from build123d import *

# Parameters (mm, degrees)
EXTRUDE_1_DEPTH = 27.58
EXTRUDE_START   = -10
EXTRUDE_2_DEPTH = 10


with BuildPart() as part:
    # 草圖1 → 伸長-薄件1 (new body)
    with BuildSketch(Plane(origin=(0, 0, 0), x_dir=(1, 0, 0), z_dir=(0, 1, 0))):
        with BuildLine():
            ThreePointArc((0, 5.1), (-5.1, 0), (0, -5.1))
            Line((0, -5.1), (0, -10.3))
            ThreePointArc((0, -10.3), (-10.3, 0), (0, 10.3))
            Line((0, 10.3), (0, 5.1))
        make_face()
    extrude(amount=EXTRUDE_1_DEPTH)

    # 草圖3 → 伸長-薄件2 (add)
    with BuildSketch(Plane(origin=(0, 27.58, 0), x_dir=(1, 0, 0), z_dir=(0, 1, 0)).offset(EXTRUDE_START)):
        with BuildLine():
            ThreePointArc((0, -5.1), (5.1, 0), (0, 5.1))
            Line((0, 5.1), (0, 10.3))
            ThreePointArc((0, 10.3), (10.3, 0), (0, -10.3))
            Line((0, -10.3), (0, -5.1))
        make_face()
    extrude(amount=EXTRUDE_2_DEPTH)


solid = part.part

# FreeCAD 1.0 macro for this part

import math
import FreeCAD as App
import Part
import Sketcher
Q = App.Units.Quantity

doc = App.newDocument("Part")
body = doc.addObject("PartDesign::Body", "Body")

# Sketch on XZ plane
sketch1 = body.newObject("Sketcher::SketchObject", "Sketch")
sketch1.AttachmentSupport = (doc.getObject("XZ_Plane"), [""])
sketch1.MapMode = "FlatFace"
sketch1.addGeometry([
    Part.ArcOfCircle(Part.Circle(App.Vector(0, 0, 0), App.Vector(0, 0, 1), 5), math.radians(90), math.radians(270)),
    Part.LineSegment(App.Vector(0, -5, 0), App.Vector(0, -10, 0)),
    Part.ArcOfCircle(Part.Circle(App.Vector(0, 0, 0), App.Vector(0, 0, 1), 10), math.radians(90), math.radians(270)),
    Part.LineSegment(App.Vector(0, 10, 0), App.Vector(0, 5, 0)),
], False)
sketch1.addConstraint([
    Sketcher.Constraint("Coincident", 0, 2, 1, 1),
    Sketcher.Constraint("Coincident", 1, 2, 2, 2),
    Sketcher.Constraint("Coincident", 2, 1, 3, 1),
    Sketcher.Constraint("Coincident", 3, 2, 0, 1),
    Sketcher.Constraint("Vertical", 1),
    Sketcher.Constraint("Vertical", 3),
    Sketcher.Constraint("Coincident", 0, 3, -1, 1),
    Sketcher.Constraint("Coincident", 2, 3, -1, 1),
    Sketcher.Constraint("PointOnObject", 0, 2, -2),
    Sketcher.Constraint("PointOnObject", 2, 1, -2),
    Sketcher.Constraint("Radius", 0, Q("5.1 mm")),
    Sketcher.Constraint("Radius", 2, Q("10.3 mm")),
])
pad1 = body.newObject("PartDesign::Pad", "Pad")
pad1.Profile = sketch1
pad1.Length = 27.58
pad1.Reversed = True

# Sketch on XZ plane
sketch2 = body.newObject("Sketcher::SketchObject", "Sketch001")
sketch2.AttachmentSupport = (doc.getObject("XZ_Plane"), [""])
sketch2.MapMode = "FlatFace"
sketch2.AttachmentOffset = App.Placement(App.Vector(0, 0, -17.58), App.Rotation())
sketch2.addGeometry([
    Part.ArcOfCircle(Part.Circle(App.Vector(0, 0, 0), App.Vector(0, 0, 1), 5), math.radians(-90), math.radians(90)),
    Part.LineSegment(App.Vector(0, 5, 0), App.Vector(0, 10, 0)),
    Part.ArcOfCircle(Part.Circle(App.Vector(0, 0, 0), App.Vector(0, 0, 1), 10), math.radians(-90), math.radians(90)),
    Part.LineSegment(App.Vector(0, -10, 0), App.Vector(0, -5, 0)),
], False)
sketch2.addConstraint([
    Sketcher.Constraint("Coincident", 0, 2, 1, 1),
    Sketcher.Constraint("Coincident", 1, 2, 2, 2),
    Sketcher.Constraint("Coincident", 2, 1, 3, 1),
    Sketcher.Constraint("Coincident", 3, 2, 0, 1),
    Sketcher.Constraint("Vertical", 1),
    Sketcher.Constraint("Vertical", 3),
    Sketcher.Constraint("Coincident", 0, 3, -1, 1),
    Sketcher.Constraint("Coincident", 2, 3, -1, 1),
    Sketcher.Constraint("PointOnObject", 0, 2, -2),
    Sketcher.Constraint("PointOnObject", 2, 1, -2),
    Sketcher.Constraint("Radius", 0, Q("5.1 mm")),
    Sketcher.Constraint("Radius", 2, Q("10.3 mm")),
])
pad2 = body.newObject("PartDesign::Pad", "Pad001")
pad2.Profile = sketch2
pad2.Length = 10
pad2.Reversed = True

doc.recompute()
